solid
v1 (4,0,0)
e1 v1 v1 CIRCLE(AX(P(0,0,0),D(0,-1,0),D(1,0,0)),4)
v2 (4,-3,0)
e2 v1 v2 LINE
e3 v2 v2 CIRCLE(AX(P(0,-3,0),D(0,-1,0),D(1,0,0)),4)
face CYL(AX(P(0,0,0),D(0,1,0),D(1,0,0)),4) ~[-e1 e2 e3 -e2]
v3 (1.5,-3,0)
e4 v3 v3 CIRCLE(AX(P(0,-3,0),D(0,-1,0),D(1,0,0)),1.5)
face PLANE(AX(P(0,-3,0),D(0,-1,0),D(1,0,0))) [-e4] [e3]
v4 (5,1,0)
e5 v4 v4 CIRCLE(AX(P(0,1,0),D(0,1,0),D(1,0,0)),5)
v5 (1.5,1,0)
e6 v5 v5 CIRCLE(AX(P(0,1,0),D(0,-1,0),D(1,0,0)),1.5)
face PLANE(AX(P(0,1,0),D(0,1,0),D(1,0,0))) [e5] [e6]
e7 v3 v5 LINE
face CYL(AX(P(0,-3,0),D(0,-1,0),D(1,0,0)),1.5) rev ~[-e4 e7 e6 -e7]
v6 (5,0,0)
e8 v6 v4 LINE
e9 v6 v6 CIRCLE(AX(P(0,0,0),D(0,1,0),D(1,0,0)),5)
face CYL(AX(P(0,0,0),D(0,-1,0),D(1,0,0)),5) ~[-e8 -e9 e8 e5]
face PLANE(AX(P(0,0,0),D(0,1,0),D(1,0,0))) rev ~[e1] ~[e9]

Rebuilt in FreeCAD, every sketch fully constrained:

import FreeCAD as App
import Part
import Sketcher
Q = App.Units.Quantity

doc = App.newDocument("Part")
body = doc.addObject("PartDesign::Body", "Body")

# Sketch on XZ plane
sketch1 = body.newObject("Sketcher::SketchObject", "Sketch")
sketch1.AttachmentSupport = (doc.getObject("XZ_Plane"), [""])
sketch1.MapMode = "FlatFace"
sketch1.addGeometry(Part.Circle(App.Vector(0, 0, 0), App.Vector(0, 0, 1), 5), False)
sketch1.addConstraint([
    Sketcher.Constraint("Coincident", 0, 3, -1, 1),
    Sketcher.Constraint("Diameter", 0, Q("10 mm")),
])
pad1 = body.newObject("PartDesign::Pad", "Pad")
pad1.Profile = sketch1
pad1.Length = 1
pad1.Reversed = True

# Sketch on XZ plane
sketch2 = body.newObject("Sketcher::SketchObject", "Sketch001")
sketch2.AttachmentSupport = (doc.getObject("XZ_Plane"), [""])
sketch2.MapMode = "FlatFace"
sketch2.addGeometry(Part.Circle(App.Vector(0, 0, 0), App.Vector(0, 0, 1), 4), False)
sketch2.addConstraint([
    Sketcher.Constraint("Coincident", 0, 3, -1, 1),
    Sketcher.Constraint("Diameter", 0, Q("8 mm")),
])
pad2 = body.newObject("PartDesign::Pad", "Pad001")
pad2.Profile = sketch2
pad2.Length = 3

# Sketch on XZ plane
sketch3 = body.newObject("Sketcher::SketchObject", "Sketch002")
sketch3.AttachmentSupport = (doc.getObject("XZ_Plane"), [""])
sketch3.MapMode = "FlatFace"
sketch3.AttachmentOffset = App.Placement(App.Vector(0, 0, 3), App.Rotation())
sketch3.addGeometry(Part.Circle(App.Vector(0, 0, 0), App.Vector(0, 0, 1), 1.5), False)
sketch3.addConstraint([
    Sketcher.Constraint("Coincident", 0, 3, -1, 1),
    Sketcher.Constraint("Diameter", 0, Q("3 mm")),
])
pocket1 = body.newObject("PartDesign::Pocket", "Pocket")
pocket1.Profile = sketch3
pocket1.Length = 13

doc.recompute()
